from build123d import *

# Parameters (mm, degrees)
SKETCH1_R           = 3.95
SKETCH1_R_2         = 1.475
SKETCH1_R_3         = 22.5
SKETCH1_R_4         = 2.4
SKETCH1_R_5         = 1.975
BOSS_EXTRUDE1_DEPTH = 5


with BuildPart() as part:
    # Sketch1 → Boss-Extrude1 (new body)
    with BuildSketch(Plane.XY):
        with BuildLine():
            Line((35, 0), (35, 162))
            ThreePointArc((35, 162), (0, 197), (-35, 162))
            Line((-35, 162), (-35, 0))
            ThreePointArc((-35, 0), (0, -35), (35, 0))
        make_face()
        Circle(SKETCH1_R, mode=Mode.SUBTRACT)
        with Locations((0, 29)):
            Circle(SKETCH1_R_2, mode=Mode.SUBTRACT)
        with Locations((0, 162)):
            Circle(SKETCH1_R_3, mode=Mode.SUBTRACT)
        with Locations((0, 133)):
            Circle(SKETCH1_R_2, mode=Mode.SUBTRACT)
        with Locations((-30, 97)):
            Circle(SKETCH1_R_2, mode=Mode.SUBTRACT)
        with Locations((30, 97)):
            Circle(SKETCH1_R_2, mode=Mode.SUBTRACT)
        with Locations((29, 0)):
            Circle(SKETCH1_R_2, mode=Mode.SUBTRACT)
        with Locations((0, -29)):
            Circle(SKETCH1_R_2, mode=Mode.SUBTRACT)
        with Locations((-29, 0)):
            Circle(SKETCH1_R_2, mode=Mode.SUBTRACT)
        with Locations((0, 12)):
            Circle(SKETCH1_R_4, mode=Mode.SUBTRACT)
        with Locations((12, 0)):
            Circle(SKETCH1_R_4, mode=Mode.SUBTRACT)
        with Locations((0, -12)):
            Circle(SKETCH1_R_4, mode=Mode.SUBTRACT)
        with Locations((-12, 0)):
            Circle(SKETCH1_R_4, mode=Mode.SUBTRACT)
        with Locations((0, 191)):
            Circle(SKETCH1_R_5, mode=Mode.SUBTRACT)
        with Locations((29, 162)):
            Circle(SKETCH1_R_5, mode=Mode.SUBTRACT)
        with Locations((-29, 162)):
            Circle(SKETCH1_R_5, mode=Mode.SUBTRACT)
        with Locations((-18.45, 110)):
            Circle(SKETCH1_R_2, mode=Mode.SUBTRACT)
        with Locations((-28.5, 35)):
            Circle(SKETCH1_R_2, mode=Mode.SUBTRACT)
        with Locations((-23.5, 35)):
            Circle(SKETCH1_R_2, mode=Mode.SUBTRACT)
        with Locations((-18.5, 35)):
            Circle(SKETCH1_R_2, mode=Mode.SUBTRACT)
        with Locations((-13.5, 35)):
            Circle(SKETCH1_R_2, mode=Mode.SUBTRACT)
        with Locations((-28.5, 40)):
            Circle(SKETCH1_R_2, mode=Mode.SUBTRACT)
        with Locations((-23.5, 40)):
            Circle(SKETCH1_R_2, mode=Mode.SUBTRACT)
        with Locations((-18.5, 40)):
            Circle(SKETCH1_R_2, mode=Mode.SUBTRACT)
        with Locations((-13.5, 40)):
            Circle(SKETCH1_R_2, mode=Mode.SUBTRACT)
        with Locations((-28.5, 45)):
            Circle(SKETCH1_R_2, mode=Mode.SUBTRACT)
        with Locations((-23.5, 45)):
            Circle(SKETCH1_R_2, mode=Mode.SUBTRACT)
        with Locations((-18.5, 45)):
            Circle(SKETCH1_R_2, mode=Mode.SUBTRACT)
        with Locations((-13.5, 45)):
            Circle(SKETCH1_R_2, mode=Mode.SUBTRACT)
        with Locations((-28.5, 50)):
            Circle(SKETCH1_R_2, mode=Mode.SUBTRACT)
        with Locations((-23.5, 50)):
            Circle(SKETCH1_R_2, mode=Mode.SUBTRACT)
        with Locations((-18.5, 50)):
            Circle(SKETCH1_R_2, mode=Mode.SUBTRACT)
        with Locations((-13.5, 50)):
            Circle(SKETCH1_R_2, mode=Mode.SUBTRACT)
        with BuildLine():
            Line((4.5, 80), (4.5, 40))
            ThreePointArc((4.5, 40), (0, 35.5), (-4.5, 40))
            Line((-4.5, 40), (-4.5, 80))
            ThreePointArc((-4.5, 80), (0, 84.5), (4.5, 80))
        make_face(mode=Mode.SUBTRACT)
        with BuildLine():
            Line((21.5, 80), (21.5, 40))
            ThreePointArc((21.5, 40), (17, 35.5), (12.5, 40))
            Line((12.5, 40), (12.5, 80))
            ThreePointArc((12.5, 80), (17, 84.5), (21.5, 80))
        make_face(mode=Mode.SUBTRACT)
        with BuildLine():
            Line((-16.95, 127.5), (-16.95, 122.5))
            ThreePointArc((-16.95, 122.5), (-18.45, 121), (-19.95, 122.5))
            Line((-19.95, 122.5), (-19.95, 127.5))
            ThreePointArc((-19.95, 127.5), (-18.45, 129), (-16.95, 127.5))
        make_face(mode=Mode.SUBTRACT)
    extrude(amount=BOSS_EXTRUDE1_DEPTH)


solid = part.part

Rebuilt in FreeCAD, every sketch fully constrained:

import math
import FreeCAD as App
import Part
import Sketcher
from FreeCAD import Vector

doc = App.newDocument("Part")
body = doc.addObject("PartDesign::Body", "Body")

# Sketch on XY plane
sketch1 = body.newObject("Sketcher::SketchObject", "Sketch")
sketch1.AttachmentSupport = (doc.getObject("XY_Plane"), [""])
sketch1.MapMode = "FlatFace"
sketch1.addGeometry([
    Part.LineSegment(Vector(35, 0, 0), Vector(35, 162, 0)),  # 0
    Part.ArcOfCircle(Part.Circle(Vector(0, 162, 0), Vector(0, 0, 1), 35), math.radians(0), math.radians(180)),  # 1
    Part.LineSegment(Vector(-35, 162, 0), Vector(-35, 0, 0)),  # 2
    Part.ArcOfCircle(Part.Circle(Vector(0, 0, 0), Vector(0, 0, 1), 35), math.radians(180), math.radians(360)),  # 3
    Part.Circle(Vector(-29, 0, 0), Vector(0, 0, 1), 1.5),  # 4
    Part.Circle(Vector(-12, 0, 0), Vector(0, 0, 1), 2.4),  # 5
    Part.Circle(Vector(-28.5, 35, 0), Vector(0, 0, 1), 1.5),  # 6
    Part.Circle(Vector(-28.5, 40, 0), Vector(0, 0, 1), 1.5),  # 7
    Part.Circle(Vector(-28.5, 45, 0), Vector(0, 0, 1), 1.5),  # 8
    Part.Circle(Vector(-28.5, 50, 0), Vector(0, 0, 1), 1.5),  # 9
    Part.Circle(Vector(-23.5, 35, 0), Vector(0, 0, 1), 1.5),  # 10
    Part.Circle(Vector(-18.5, 35, 0), Vector(0, 0, 1), 1.5),  # 11
    Part.Circle(Vector(-23.5, 40, 0), Vector(0, 0, 1), 1.5),  # 12
    Part.Circle(Vector(-23.5, 45, 0), Vector(0, 0, 1), 1.5),  # 13
    Part.Circle(Vector(-23.5, 50, 0), Vector(0, 0, 1), 1.5),  # 14
    Part.Circle(Vector(-18.5, 40, 0), Vector(0, 0, 1), 1.5),  # 15
    Part.Circle(Vector(-18.5, 45, 0), Vector(0, 0, 1), 1.5),  # 16
    Part.Circle(Vector(-18.5, 50, 0), Vector(0, 0, 1), 1.5),  # 17
    Part.Circle(Vector(-13.5, 35, 0), Vector(0, 0, 1), 1.5),  # 18
    Part.Circle(Vector(-13.5, 40, 0), Vector(0, 0, 1), 1.5),  # 19
    Part.Circle(Vector(-13.5, 45, 0), Vector(0, 0, 1), 1.5),  # 20
    Part.Circle(Vector(-13.5, 50, 0), Vector(0, 0, 1), 1.5),  # 21
    Part.Circle(Vector(0, -29, 0), Vector(0, 0, 1), 1.5),  # 22
    Part.Circle(Vector(0, -12, 0), Vector(0, 0, 1), 2.4),  # 23
    Part.Circle(Vector(0, 0, 0), Vector(0, 0, 1), 4),  # 24
    Part.Circle(Vector(0, 12, 0), Vector(0, 0, 1), 2.4),  # 25
    Part.Circle(Vector(12, 0, 0), Vector(0, 0, 1), 2.4),  # 26
    Part.Circle(Vector(29, 0, 0), Vector(0, 0, 1), 1.5),  # 27
    Part.Circle(Vector(0, 29, 0), Vector(0, 0, 1), 1.5),  # 28
    Part.ArcOfCircle(Part.Circle(Vector(0, 80, 0), Vector(0, 0, 1), 4.5), math.radians(0), math.radians(180)),  # 29
    Part.LineSegment(Vector(4.5, 80, 0), Vector(4.5, 40, 0)),  # 30
    Part.ArcOfCircle(Part.Circle(Vector(0, 40, 0), Vector(0, 0, 1), 4.5), math.radians(180), math.radians(360)),  # 31
    Part.LineSegment(Vector(-4.5, 40, 0), Vector(-4.5, 80, 0)),  # 32
    Part.ArcOfCircle(Part.Circle(Vector(17, 80, 0), Vector(0, 0, 1), 4.5), math.radians(0), math.radians(180)),  # 33
    Part.LineSegment(Vector(21.5, 80, 0), Vector(21.5, 40, 0)),  # 34
    Part.ArcOfCircle(Part.Circle(Vector(17, 40, 0), Vector(0, 0, 1), 4.5), math.radians(180), math.radians(360)),  # 35
    Part.LineSegment(Vector(12.5, 40, 0), Vector(12.5, 80, 0)),  # 36
    Part.Circle(Vector(-30, 97, 0), Vector(0, 0, 1), 1.5),  # 37
    Part.Circle(Vector(-18.4, 110, 0), Vector(0, 0, 1), 1.5),  # 38
    Part.ArcOfCircle(Part.Circle(Vector(-18.4, 127.5, 0), Vector(0, 0, 1), 1.5), math.radians(0), math.radians(180)),  # 39
    Part.LineSegment(Vector(-16.9, 127.5, 0), Vector(-16.9, 122.5, 0)),  # 40
    Part.ArcOfCircle(Part.Circle(Vector(-18.4, 122.5, 0), Vector(0, 0, 1), 1.5), math.radians(180), math.radians(360)),  # 41
    Part.LineSegment(Vector(-19.9, 122.5, 0), Vector(-19.9, 127.5, 0)),  # 42
    Part.Circle(Vector(-29, 162, 0), Vector(0, 0, 1), 2),  # 43
    Part.Circle(Vector(0, 133, 0), Vector(0, 0, 1), 1.5),  # 44
    Part.Circle(Vector(30, 97, 0), Vector(0, 0, 1), 1.5),  # 45
    Part.Circle(Vector(0, 162, 0), Vector(0, 0, 1), 22.5),  # 46
    Part.Circle(Vector(0, 191, 0), Vector(0, 0, 1), 2),  # 47
    Part.Circle(Vector(29, 162, 0), Vector(0, 0, 1), 2),  # 48
], False)
sketch1.addConstraint([
    Sketcher.Constraint("Tangent", 0, 2, 1, 1),
    Sketcher.Constraint("Tangent", 1, 2, 2, 1),
    Sketcher.Constraint("Tangent", 2, 2, 3, 1),
    Sketcher.Constraint("Tangent", 3, 2, 0, 1),
    Sketcher.Constraint("Tangent", 29, 1, 30, 1),
    Sketcher.Constraint("Tangent", 30, 2, 31, 2),
    Sketcher.Constraint("Tangent", 31, 1, 32, 1),
    Sketcher.Constraint("Tangent", 32, 2, 29, 2),
    Sketcher.Constraint("Tangent", 33, 1, 34, 1),
    Sketcher.Constraint("Tangent", 34, 2, 35, 2),
    Sketcher.Constraint("Tangent", 35, 1, 36, 1),
    Sketcher.Constraint("Tangent", 36, 2, 33, 2),
    Sketcher.Constraint("Tangent", 39, 1, 40, 1),
    Sketcher.Constraint("Tangent", 40, 2, 41, 2),
    Sketcher.Constraint("Tangent", 41, 1, 42, 1),
    Sketcher.Constraint("Tangent", 42, 2, 39, 2),
    Sketcher.Constraint("Vertical", 0),
    Sketcher.Constraint("Vertical", 2),
    Sketcher.Constraint("Vertical", 30),
    Sketcher.Constraint("Vertical", 32),
    Sketcher.Constraint("Vertical", 34),
    Sketcher.Constraint("Vertical", 36),
    Sketcher.Constraint("Vertical", 40),
    Sketcher.Constraint("Vertical", 42),
    Sketcher.Constraint("Coincident", 3, 3, -1, 1),
    Sketcher.Constraint("Coincident", 24, 3, -1, 1),
    Sketcher.Constraint("Coincident", 46, 3, 1, 3),
    Sketcher.Constraint("Equal", 4, 6),
    Sketcher.Constraint("Equal", 6, 7),
    Sketcher.Constraint("Equal", 7, 8),
    Sketcher.Constraint("Equal", 8, 9),
    Sketcher.Constraint("Equal", 9, 10),
    Sketcher.Constraint("Equal", 10, 11),
    Sketcher.Constraint("Equal", 11, 12),
    Sketcher.Constraint("Equal", 12, 13),
    Sketcher.Constraint("Equal", 13, 14),
    Sketcher.Constraint("Equal", 14, 15),
    Sketcher.Constraint("Equal", 15, 16),
    Sketcher.Constraint("Equal", 16, 17),
    Sketcher.Constraint("Equal", 17, 18),
    Sketcher.Constraint("Equal", 18, 19),
    Sketcher.Constraint("Equal", 19, 20),
    Sketcher.Constraint("Equal", 20, 21),
    Sketcher.Constraint("Equal", 21, 22),
    Sketcher.Constraint("Equal", 5, 23),
    Sketcher.Constraint("Equal", 23, 25),
    Sketcher.Constraint("Equal", 25, 26),
    Sketcher.Constraint("Equal", 22, 27),
    Sketcher.Constraint("Equal", 27, 28),
    Sketcher.Constraint("Equal", 31, 33),
    Sketcher.Constraint("Equal", 28, 37),
    Sketcher.Constraint("Equal", 37, 38),
    Sketcher.Constraint("Equal", 38, 44),
    Sketcher.Constraint("Equal", 44, 45),
    Sketcher.Constraint("Equal", 43, 47),
    Sketcher.Constraint("Equal", 47, 48),
    Sketcher.Constraint("Symmetric", 23, 3, 25, 3, -1, 1),
    Sketcher.Constraint("Symmetric", 5, 3, 26, 3, -1, 1),
    Sketcher.Constraint("Symmetric", 4, 3, 27, 3, -1, 1),
    Sketcher.Constraint("Symmetric", 22, 3, 28, 3, -1, 1),
    Sketcher.Constraint("Symmetric", 37, 3, 45, 3, -2),
    Sketcher.Constraint("Symmetric", 43, 3, 48, 3, -2),
    Sketcher.Constraint("PointOnObject", 4, 3, -1),
    Sketcher.Constraint("PointOnObject", 5, 3, -1),
    Sketcher.Constraint("PointOnObject", 22, 3, -2),
    Sketcher.Constraint("PointOnObject", 23, 3, -2),
    Sketcher.Constraint("PointOnObject", 29, 3, -2),
    Sketcher.Constraint("PointOnObject", 44, 3, -2),
    Sketcher.Constraint("PointOnObject", 47, 3, -2),
    Sketcher.Constraint("Horizontal", 6, 3, 10, 3),
    Sketcher.Constraint("Horizontal", 10, 3, 11, 3),
    Sketcher.Constraint("Horizontal", 7, 3, 12, 3),
    Sketcher.Constraint("Horizontal", 8, 3, 13, 3),
    Sketcher.Constraint("Horizontal", 9, 3, 14, 3),
    Sketcher.Constraint("Horizontal", 12, 3, 15, 3),
    Sketcher.Constraint("Horizontal", 13, 3, 16, 3),
    Sketcher.Constraint("Horizontal", 14, 3, 17, 3),
    Sketcher.Constraint("Horizontal", 11, 3, 18, 3),
    Sketcher.Constraint("Horizontal", 15, 3, 19, 3),
    Sketcher.Constraint("Horizontal", 16, 3, 20, 3),
    Sketcher.Constraint("Horizontal", 17, 3, 21, 3),
    Sketcher.Constraint("Horizontal", 19, 3, 31, 3),
    Sketcher.Constraint("Horizontal", 29, 3, 33, 3),
    Sketcher.Constraint("Horizontal", 31, 3, 35, 3),
    Sketcher.Constraint("Horizontal", 1, 3, 43, 3),
    Sketcher.Constraint("Vertical", 6, 3, 7, 3),
    Sketcher.Constraint("Vertical", 7, 3, 8, 3),
    Sketcher.Constraint("Vertical", 8, 3, 9, 3),
    Sketcher.Constraint("Vertical", 10, 3, 12, 3),
    Sketcher.Constraint("Vertical", 12, 3, 13, 3),
    Sketcher.Constraint("Vertical", 13, 3, 14, 3),
    Sketcher.Constraint("Vertical", 11, 3, 15, 3),
    Sketcher.Constraint("Vertical", 15, 3, 16, 3),
    Sketcher.Constraint("Vertical", 16, 3, 17, 3),
    Sketcher.Constraint("Vertical", 18, 3, 19, 3),
    Sketcher.Constraint("Vertical", 19, 3, 20, 3),
    Sketcher.Constraint("Vertical", 20, 3, 21, 3),
    Sketcher.Constraint("Vertical", 38, 3, 39, 3),
    Sketcher.Constraint("Vertical", 4, 3, 43, 3),
    Sketcher.Constraint("Diameter", 46, 45.0),
    Sketcher.Constraint("Radius", 1, 35.0),
    Sketcher.Constraint("Diameter", 5, 4.8),
    Sketcher.Constraint("Diameter", 24, 7.9),
    Sketcher.Constraint("Radius", 29, 4.5),
    Sketcher.Constraint("Radius", 39, 1.5),
    Sketcher.Constraint("Diameter", 4, 2.95),
    Sketcher.Constraint("Diameter", 43, 3.95),
    Sketcher.Constraint("DistanceY", 0, 1, 0, 2, 162.0),
    Sketcher.Constraint("DistanceY", 30, 2, 30, 1, 40.0),
    Sketcher.Constraint("DistanceY", 40, 2, 40, 1, 5.0),
    Sketcher.Constraint("DistanceX", 4, 3, -1, 1, 29.0),
    Sketcher.Constraint("DistanceX", 5, 3, -1, 1, 12.0),
    Sketcher.Constraint("DistanceY", -1, 1, 6, 3, 35.0),
    Sketcher.Constraint("DistanceY", -1, 1, 7, 3, 40.0),
    Sketcher.Constraint("DistanceY", -1, 1, 8, 3, 45.0),
    Sketcher.Constraint("DistanceY", -1, 1, 9, 3, 50.0),
    Sketcher.Constraint("DistanceY", 22, 3, -1, 1, 29.0),
    Sketcher.Constraint("DistanceY", 23, 3, -1, 1, 12.0),
    Sketcher.Constraint("DistanceX", -1, 1, 33, 3, 17.0),
    Sketcher.Constraint("DistanceX", 37, 3, -1, 1, 30.0),
    Sketcher.Constraint("DistanceY", -1, 1, 37, 3, 97.0),
    Sketcher.Constraint("DistanceY", -1, 1, 38, 3, 110.0),
    Sketcher.Constraint("DistanceY", -1, 1, 44, 3, 133.0),
    Sketcher.Constraint("DistanceY", -1, 1, 47, 3, 191.0),
    Sketcher.Constraint("DistanceX", 6, 3, 10, 3, 5.0),
    Sketcher.Constraint("DistanceX", 10, 3, 11, 3, 5.0),
    Sketcher.Constraint("DistanceX", 11, 3, 18, 3, 5.0),
    Sketcher.Constraint("DistanceX", 21, 3, 29, 1, 18.0),
    Sketcher.Constraint("DistanceY", -1, 1, 39, 3, 127.5),
    Sketcher.Constraint("DistanceX", 38, 3, -1, 1, 18.45),
])
pad1 = body.newObject("PartDesign::Pad", "Pad")
pad1.Profile = sketch1
pad1.Length = 5

doc.recompute()
